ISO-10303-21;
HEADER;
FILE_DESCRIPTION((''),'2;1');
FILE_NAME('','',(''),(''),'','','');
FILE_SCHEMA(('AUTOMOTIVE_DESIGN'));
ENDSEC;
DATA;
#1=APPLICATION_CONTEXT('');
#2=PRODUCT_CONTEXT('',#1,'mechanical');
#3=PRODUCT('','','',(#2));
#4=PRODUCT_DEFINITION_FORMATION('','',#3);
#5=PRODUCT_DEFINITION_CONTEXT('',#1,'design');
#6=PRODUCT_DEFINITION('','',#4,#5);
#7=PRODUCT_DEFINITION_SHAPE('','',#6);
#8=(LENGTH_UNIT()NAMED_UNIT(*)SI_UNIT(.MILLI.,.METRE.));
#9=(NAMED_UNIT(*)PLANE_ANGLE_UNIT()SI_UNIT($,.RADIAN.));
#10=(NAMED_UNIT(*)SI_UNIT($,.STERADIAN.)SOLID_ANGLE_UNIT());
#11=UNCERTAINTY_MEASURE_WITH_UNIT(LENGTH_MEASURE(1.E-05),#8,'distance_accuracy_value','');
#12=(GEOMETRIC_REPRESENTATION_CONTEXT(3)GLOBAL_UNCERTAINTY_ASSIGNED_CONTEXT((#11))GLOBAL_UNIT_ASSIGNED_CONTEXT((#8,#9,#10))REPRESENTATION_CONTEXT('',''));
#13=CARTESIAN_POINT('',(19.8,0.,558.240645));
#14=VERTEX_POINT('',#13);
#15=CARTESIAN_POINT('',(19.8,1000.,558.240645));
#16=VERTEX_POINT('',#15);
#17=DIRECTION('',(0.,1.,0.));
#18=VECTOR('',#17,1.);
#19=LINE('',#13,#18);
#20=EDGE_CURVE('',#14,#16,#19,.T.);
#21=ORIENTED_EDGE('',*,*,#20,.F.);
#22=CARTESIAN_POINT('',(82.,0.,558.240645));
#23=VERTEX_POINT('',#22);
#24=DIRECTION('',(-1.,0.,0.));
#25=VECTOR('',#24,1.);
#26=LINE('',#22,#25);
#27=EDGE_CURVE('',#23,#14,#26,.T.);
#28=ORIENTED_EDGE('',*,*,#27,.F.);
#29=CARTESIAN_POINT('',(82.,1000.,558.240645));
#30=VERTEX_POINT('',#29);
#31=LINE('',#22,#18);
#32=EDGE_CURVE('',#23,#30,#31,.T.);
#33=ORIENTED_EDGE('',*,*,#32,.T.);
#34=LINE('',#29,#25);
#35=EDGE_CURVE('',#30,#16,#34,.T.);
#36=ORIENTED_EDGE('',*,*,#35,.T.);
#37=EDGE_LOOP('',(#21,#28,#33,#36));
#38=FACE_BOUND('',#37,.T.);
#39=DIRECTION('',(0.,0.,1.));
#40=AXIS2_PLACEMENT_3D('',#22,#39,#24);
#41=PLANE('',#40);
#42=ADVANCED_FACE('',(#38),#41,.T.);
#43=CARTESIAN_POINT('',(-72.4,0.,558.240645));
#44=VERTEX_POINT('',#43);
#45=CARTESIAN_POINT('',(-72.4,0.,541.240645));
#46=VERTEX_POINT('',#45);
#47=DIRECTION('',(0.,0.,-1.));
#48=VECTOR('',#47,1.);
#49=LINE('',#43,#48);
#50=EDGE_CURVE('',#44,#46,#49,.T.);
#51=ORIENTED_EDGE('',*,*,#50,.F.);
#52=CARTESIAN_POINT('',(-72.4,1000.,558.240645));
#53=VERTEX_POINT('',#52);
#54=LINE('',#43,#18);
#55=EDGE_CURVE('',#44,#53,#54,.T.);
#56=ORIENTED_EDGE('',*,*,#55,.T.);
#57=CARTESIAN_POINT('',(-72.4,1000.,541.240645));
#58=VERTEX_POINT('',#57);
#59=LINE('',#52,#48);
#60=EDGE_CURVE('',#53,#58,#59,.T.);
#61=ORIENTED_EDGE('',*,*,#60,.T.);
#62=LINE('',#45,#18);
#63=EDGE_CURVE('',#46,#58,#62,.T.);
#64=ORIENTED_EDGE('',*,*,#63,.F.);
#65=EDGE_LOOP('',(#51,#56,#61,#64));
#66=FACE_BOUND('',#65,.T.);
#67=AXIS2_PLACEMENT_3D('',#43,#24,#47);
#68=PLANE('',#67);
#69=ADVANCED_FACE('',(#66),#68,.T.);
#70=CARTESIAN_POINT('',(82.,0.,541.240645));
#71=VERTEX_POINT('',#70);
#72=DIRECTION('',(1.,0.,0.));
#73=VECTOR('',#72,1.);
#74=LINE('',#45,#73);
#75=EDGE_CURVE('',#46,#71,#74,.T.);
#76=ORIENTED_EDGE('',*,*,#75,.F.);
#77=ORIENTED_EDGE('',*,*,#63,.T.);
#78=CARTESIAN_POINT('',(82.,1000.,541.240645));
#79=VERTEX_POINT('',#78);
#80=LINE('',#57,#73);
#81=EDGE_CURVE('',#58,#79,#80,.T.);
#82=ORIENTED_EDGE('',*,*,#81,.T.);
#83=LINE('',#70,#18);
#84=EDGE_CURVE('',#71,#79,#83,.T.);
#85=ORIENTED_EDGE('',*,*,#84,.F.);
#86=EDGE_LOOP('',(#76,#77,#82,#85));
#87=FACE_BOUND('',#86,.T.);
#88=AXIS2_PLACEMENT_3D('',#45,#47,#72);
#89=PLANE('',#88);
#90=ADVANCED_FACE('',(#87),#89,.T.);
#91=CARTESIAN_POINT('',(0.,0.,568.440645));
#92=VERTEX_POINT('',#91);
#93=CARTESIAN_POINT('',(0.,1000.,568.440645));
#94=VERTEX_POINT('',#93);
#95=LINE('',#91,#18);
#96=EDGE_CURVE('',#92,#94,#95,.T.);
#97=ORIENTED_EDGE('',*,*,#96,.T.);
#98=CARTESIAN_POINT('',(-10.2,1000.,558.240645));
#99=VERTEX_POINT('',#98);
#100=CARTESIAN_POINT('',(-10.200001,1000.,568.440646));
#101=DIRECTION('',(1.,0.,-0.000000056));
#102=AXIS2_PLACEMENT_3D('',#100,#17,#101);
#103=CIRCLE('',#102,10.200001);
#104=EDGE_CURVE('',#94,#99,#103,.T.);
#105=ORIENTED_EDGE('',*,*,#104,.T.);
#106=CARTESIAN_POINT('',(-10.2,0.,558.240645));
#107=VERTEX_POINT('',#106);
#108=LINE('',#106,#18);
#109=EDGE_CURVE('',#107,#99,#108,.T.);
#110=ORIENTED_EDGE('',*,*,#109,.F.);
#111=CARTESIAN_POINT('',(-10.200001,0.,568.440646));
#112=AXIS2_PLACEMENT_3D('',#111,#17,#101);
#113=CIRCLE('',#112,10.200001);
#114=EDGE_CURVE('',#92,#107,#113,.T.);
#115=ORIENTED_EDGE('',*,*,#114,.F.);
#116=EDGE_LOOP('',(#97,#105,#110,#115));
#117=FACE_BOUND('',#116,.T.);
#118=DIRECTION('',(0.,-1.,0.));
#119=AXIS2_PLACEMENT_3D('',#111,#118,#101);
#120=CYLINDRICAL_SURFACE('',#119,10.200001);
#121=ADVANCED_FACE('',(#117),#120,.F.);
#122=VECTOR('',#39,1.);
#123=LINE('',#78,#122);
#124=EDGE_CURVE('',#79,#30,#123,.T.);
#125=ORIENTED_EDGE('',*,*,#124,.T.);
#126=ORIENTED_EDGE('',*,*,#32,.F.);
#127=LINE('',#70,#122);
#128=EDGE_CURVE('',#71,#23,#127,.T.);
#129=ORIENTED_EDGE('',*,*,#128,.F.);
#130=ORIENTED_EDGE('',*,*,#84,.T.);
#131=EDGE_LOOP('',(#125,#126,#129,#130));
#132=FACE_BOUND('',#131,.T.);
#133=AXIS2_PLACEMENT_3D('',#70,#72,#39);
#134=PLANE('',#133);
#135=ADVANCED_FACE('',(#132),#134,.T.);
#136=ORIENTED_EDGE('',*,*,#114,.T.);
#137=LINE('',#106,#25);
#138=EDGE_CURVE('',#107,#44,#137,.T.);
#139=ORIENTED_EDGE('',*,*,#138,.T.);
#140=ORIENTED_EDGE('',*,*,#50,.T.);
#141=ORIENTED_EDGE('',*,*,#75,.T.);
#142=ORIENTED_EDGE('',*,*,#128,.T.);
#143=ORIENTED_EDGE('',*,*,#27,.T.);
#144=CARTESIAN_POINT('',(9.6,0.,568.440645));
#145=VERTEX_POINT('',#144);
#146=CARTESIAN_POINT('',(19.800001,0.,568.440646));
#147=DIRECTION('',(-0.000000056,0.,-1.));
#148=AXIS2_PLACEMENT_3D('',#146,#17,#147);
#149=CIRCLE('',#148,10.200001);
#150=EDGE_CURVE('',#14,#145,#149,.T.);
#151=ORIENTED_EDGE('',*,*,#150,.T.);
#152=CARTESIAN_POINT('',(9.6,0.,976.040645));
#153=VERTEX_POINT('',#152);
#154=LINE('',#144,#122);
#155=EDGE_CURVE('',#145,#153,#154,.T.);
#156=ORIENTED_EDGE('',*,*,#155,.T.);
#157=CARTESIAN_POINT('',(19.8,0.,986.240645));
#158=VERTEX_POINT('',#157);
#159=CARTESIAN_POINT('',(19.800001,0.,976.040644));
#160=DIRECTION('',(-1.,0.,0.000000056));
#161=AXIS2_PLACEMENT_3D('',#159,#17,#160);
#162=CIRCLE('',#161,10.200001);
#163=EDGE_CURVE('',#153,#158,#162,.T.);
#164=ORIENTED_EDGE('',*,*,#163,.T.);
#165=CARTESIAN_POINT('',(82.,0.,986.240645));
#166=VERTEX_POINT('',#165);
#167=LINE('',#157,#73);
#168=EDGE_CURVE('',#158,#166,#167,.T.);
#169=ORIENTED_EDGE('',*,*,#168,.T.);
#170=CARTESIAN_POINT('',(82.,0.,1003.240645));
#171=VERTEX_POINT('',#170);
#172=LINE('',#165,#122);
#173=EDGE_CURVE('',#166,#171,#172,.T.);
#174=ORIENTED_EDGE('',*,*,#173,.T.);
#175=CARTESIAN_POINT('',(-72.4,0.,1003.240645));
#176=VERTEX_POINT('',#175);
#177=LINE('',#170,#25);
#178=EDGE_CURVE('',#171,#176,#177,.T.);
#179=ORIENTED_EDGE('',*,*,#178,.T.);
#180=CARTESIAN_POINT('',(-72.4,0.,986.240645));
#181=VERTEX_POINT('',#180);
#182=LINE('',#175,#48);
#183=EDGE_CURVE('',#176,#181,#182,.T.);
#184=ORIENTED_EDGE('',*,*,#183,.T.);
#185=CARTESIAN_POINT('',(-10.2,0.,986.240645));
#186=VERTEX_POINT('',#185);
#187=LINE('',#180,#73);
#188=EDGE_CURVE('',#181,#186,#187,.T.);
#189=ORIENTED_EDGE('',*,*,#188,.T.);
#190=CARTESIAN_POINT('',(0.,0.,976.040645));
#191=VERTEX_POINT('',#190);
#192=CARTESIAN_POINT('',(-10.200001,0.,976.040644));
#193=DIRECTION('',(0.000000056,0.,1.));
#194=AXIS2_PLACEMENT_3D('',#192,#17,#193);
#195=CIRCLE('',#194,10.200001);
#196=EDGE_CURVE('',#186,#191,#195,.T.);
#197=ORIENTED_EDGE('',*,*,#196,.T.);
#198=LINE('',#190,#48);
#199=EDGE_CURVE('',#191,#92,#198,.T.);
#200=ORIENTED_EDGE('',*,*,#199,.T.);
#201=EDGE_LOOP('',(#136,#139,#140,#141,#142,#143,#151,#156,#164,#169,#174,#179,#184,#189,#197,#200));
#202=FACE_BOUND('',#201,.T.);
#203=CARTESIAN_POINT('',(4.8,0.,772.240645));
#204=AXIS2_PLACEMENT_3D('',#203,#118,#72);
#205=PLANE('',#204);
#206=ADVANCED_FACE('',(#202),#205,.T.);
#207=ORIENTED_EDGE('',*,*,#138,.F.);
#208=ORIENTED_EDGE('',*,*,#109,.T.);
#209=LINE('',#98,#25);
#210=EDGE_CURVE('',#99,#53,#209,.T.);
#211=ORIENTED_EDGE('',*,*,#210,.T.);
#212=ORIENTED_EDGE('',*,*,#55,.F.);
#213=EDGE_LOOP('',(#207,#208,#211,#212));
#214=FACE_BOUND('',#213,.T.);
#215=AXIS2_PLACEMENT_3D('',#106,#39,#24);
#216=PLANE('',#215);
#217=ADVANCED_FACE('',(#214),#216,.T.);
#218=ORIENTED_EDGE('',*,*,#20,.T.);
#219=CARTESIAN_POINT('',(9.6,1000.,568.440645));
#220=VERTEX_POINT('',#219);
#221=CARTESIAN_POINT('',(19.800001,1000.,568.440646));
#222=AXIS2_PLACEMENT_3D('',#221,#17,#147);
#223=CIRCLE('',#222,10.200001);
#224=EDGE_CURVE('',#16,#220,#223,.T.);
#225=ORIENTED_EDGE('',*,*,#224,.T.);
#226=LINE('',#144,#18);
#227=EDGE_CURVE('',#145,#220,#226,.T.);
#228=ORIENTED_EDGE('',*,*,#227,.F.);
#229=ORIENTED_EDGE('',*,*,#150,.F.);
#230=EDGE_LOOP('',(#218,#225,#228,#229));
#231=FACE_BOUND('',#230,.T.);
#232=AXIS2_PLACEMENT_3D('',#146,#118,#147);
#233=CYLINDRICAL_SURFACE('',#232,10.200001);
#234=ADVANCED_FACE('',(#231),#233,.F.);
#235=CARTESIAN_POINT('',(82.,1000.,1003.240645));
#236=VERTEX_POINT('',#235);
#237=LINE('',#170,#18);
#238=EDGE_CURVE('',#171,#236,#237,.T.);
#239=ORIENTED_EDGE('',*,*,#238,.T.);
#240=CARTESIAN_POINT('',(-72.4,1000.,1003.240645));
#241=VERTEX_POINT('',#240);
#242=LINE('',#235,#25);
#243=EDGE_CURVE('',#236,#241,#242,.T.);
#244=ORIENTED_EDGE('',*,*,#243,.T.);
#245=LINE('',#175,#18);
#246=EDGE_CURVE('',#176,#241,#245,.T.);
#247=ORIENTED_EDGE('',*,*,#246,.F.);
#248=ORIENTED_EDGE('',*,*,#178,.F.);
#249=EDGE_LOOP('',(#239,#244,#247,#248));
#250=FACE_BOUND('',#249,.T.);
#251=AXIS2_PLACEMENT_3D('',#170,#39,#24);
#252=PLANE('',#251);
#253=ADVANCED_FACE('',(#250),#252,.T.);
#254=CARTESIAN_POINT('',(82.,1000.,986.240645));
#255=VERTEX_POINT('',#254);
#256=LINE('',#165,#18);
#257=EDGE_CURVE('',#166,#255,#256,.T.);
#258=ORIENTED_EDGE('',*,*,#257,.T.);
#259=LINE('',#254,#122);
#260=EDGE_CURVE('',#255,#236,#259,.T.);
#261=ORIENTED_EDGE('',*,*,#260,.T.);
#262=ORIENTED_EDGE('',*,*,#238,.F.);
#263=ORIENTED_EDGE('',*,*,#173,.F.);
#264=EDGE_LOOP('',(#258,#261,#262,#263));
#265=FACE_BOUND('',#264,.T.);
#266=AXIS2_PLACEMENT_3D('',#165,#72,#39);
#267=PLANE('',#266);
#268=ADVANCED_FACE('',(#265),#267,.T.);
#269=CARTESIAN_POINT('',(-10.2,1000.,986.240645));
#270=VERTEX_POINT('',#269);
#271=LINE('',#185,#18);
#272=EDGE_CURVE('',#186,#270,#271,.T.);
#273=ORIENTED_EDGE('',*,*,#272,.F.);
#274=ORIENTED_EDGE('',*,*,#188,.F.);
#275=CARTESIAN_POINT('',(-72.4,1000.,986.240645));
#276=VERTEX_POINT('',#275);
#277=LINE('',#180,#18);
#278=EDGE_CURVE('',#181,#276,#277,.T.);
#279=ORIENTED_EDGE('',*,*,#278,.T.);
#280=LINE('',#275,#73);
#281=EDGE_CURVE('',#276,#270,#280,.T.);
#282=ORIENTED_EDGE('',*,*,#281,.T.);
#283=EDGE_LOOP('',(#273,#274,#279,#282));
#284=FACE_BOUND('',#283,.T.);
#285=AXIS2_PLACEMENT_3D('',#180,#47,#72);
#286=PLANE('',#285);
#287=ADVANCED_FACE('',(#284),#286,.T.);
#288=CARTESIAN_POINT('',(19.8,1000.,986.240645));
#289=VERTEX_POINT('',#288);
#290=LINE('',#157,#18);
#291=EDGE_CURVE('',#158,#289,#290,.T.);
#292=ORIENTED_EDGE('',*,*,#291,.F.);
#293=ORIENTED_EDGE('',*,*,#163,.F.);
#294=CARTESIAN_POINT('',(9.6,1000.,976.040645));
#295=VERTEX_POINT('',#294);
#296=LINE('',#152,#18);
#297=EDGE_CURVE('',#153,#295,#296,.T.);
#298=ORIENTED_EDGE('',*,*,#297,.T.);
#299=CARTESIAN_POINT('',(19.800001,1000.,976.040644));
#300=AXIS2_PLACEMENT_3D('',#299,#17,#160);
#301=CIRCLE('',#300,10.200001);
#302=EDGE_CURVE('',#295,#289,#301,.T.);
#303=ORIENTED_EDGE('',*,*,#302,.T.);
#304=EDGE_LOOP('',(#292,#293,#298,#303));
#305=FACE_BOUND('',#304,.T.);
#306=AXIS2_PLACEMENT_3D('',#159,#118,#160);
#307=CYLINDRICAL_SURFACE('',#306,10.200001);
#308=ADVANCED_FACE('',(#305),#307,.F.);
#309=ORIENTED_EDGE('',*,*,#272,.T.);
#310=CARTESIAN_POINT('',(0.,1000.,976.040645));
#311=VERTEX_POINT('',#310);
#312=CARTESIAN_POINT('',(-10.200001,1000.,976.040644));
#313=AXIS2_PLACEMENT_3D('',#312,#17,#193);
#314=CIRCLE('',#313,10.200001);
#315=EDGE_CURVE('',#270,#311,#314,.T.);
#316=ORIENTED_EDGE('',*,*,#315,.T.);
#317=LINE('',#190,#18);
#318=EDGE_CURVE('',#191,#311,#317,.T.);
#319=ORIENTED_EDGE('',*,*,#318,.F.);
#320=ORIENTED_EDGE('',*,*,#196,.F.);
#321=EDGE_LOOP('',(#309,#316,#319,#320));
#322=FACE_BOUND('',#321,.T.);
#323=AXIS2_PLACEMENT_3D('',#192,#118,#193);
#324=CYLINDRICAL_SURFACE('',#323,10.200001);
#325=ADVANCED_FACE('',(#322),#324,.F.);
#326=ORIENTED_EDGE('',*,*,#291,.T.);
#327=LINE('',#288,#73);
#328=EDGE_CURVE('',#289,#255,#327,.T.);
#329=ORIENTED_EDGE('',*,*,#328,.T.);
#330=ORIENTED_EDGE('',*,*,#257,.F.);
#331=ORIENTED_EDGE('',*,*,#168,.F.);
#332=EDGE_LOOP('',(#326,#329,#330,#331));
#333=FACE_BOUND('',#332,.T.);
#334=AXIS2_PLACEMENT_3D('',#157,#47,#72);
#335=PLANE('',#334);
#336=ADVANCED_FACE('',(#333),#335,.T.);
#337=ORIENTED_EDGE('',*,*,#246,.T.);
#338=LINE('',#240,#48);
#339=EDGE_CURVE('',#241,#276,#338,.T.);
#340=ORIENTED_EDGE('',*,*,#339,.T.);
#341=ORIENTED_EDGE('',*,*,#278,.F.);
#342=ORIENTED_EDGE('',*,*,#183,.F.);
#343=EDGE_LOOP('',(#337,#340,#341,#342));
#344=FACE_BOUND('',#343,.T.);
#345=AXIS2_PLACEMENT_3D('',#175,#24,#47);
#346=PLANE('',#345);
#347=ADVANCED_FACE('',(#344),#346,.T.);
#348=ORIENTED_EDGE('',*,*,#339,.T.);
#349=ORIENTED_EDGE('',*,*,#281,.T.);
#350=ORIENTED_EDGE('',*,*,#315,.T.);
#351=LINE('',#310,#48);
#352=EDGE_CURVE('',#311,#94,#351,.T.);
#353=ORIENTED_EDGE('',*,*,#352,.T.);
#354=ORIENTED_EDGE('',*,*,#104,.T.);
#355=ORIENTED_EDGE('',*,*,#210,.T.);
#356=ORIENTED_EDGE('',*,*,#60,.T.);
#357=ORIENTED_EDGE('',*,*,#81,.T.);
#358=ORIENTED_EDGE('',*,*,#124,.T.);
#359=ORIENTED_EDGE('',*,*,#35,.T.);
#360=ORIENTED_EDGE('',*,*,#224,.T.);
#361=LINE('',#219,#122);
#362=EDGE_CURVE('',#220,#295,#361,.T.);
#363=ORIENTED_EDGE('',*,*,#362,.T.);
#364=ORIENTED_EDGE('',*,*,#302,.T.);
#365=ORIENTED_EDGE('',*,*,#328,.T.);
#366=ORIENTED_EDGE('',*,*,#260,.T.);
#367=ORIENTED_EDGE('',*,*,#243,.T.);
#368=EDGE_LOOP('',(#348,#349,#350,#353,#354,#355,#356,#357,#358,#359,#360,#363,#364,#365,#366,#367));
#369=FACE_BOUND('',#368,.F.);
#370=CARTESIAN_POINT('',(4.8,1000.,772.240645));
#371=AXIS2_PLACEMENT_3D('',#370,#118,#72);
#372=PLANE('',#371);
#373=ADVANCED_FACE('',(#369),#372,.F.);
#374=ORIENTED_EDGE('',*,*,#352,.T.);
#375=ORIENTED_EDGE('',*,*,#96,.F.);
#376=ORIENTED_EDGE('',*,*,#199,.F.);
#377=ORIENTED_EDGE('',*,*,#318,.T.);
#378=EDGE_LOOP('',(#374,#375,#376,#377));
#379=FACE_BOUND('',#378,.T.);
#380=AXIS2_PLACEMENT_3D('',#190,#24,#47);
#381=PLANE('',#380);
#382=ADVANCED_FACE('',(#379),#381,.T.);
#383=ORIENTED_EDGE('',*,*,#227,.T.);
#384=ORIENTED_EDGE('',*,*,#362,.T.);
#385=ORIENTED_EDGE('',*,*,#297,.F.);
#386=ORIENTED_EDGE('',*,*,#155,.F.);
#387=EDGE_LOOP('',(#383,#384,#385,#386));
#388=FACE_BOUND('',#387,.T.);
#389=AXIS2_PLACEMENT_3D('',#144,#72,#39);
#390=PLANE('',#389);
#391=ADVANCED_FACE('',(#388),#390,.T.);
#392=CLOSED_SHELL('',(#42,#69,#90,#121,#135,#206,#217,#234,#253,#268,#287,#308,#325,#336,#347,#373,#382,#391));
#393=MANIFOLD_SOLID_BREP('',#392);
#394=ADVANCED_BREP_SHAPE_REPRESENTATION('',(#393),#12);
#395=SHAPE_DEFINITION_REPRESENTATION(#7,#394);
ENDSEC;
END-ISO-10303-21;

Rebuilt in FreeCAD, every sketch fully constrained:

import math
import FreeCAD as App
import Part
import Sketcher
Q = App.Units.Quantity

doc = App.newDocument("Part")
body = doc.addObject("PartDesign::Body", "Body")

# Sketch on XZ plane
sketch1 = body.newObject("Sketcher::SketchObject", "Sketch")
sketch1.AttachmentSupport = (doc.getObject("XZ_Plane"), [""])
sketch1.MapMode = "FlatFace"
sketch1.addGeometry(Part.LineSegment(App.Vector(-72.4, 558.240645, 0), App.Vector(-72.4, 541.240645, 0)), False)
sketch1.addGeometry(Part.LineSegment(App.Vector(-72.4, 541.240645, 0), App.Vector(82, 541.240645, 0)), False)
sketch1.addGeometry(Part.LineSegment(App.Vector(82, 541.240645, 0), App.Vector(82, 558.240645, 0)), False)
sketch1.addGeometry(Part.LineSegment(App.Vector(82, 558.240645, 0), App.Vector(19.8, 558.240645, 0)), False)
sketch1.addGeometry(Part.ArcOfCircle(Part.Circle(App.Vector(19.800001, 568.440646, 0), App.Vector(0, 0, 1), 10.200001), math.radians(-179.999997), math.radians(-90.000003)), False)
sketch1.addGeometry(Part.LineSegment(App.Vector(9.6, 568.440645, 0), App.Vector(9.6, 976.040645, 0)), False)
sketch1.addGeometry(Part.ArcOfCircle(Part.Circle(App.Vector(19.800001, 976.040644, 0), App.Vector(0, 0, 1), 10.200001), math.radians(90.000003), math.radians(179.999997)), False)
sketch1.addGeometry(Part.LineSegment(App.Vector(19.8, 986.240645, 0), App.Vector(82, 986.240645, 0)), False)
sketch1.addGeometry(Part.LineSegment(App.Vector(82, 986.240645, 0), App.Vector(82, 1003.240645, 0)), False)
sketch1.addGeometry(Part.LineSegment(App.Vector(82, 1003.240645, 0), App.Vector(-72.4, 1003.240645, 0)), False)
sketch1.addGeometry(Part.LineSegment(App.Vector(-72.4, 1003.240645, 0), App.Vector(-72.4, 986.240645, 0)), False)
sketch1.addGeometry(Part.LineSegment(App.Vector(-72.4, 986.240645, 0), App.Vector(-10.2, 986.240645, 0)), False)
sketch1.addGeometry(Part.ArcOfCircle(Part.Circle(App.Vector(-10.200001, 976.040644, 0), App.Vector(0, 0, 1), 10.200001), math.radians(0.000003), math.radians(89.999997)), False)
sketch1.addGeometry(Part.LineSegment(App.Vector(0, 976.040645, 0), App.Vector(0, 568.440645, 0)), False)
sketch1.addGeometry(Part.ArcOfCircle(Part.Circle(App.Vector(-10.200001, 568.440646, 0), App.Vector(0, 0, 1), 10.200001), math.radians(-89.999997), math.radians(-0.000003)), False)
sketch1.addGeometry(Part.LineSegment(App.Vector(-10.2, 558.240645, 0), App.Vector(-72.4, 558.240645, 0)), False)
sketch1.addConstraint(Sketcher.Constraint("Coincident", 0, 2, 1, 1))
sketch1.addConstraint(Sketcher.Constraint("Coincident", 1, 2, 2, 1))
sketch1.addConstraint(Sketcher.Constraint("Coincident", 2, 2, 3, 1))
sketch1.addConstraint(Sketcher.Constraint("Tangent", 3, 2, 4, 2))
sketch1.addConstraint(Sketcher.Constraint("Tangent", 4, 1, 5, 1))
sketch1.addConstraint(Sketcher.Constraint("Tangent", 5, 2, 6, 2))
sketch1.addConstraint(Sketcher.Constraint("Tangent", 6, 1, 7, 1))
sketch1.addConstraint(Sketcher.Constraint("Coincident", 7, 2, 8, 1))
sketch1.addConstraint(Sketcher.Constraint("Coincident", 8, 2, 9, 1))
sketch1.addConstraint(Sketcher.Constraint("Coincident", 9, 2, 10, 1))
sketch1.addConstraint(Sketcher.Constraint("Coincident", 10, 2, 11, 1))
sketch1.addConstraint(Sketcher.Constraint("Tangent", 11, 2, 12, 2))
sketch1.addConstraint(Sketcher.Constraint("Tangent", 12, 1, 13, 1))
sketch1.addConstraint(Sketcher.Constraint("Tangent", 13, 2, 14, 2))
sketch1.addConstraint(Sketcher.Constraint("Tangent", 14, 1, 15, 1))
sketch1.addConstraint(Sketcher.Constraint("Coincident", 15, 2, 0, 1))
sketch1.addConstraint(Sketcher.Constraint("Vertical", 0))
sketch1.addConstraint(Sketcher.Constraint("Horizontal", 1))
sketch1.addConstraint(Sketcher.Constraint("Vertical", 2))
sketch1.addConstraint(Sketcher.Constraint("Horizontal", 3))
sketch1.addConstraint(Sketcher.Constraint("Vertical", 5))
sketch1.addConstraint(Sketcher.Constraint("Horizontal", 7))
sketch1.addConstraint(Sketcher.Constraint("Vertical", 8))
sketch1.addConstraint(Sketcher.Constraint("Horizontal", 9))
sketch1.addConstraint(Sketcher.Constraint("Vertical", 10))
sketch1.addConstraint(Sketcher.Constraint("Horizontal", 11))
sketch1.addConstraint(Sketcher.Constraint("Vertical", 13))
sketch1.addConstraint(Sketcher.Constraint("Horizontal", 15))
sketch1.addConstraint(Sketcher.Constraint("Equal", 4, 6))
sketch1.addConstraint(Sketcher.Constraint("Equal", 6, 12))
sketch1.addConstraint(Sketcher.Constraint("Equal", 12, 14))
sketch1.addConstraint(Sketcher.Constraint("PointOnObject", 12, 1, -2))
sketch1.addConstraint(Sketcher.Constraint("Horizontal", 6, 3, 12, 3))
sketch1.addConstraint(Sketcher.Constraint("Horizontal", 4, 3, 14, 3))
sketch1.addConstraint(Sketcher.Constraint("Vertical", 2, 2, 7, 2))
sketch1.addConstraint(Sketcher.Constraint("Vertical", 0, 2, 9, 2))
sketch1.addConstraint(Sketcher.Constraint("Equal", 7, 11))
sketch1.addConstraint(Sketcher.Constraint("Equal", 2, 8))
sketch1.addConstraint(Sketcher.Constraint("Radius", 4, Q("10.200001 mm")))
sketch1.addConstraint(Sketcher.Constraint("DistanceY", 0, 2, 0, 1, Q("17 mm")))
sketch1.addConstraint(Sketcher.Constraint("DistanceX", 1, 1, 1, 2, Q("154.4 mm")))
sketch1.addConstraint(Sketcher.Constraint("DistanceX", 3, 2, 3, 1, Q("62.2 mm")))
sketch1.addConstraint(Sketcher.Constraint("DistanceY", 5, 1, 5, 2, Q("407.6 mm")))
sketch1.addConstraint(Sketcher.Constraint("DistanceY", -1, 1, 4, 3, Q("568.440646 mm")))
pad1 = body.newObject("PartDesign::Pad", "Pad")
pad1.Profile = sketch1
pad1.Length = 1000
pad1.Reversed = True

doc.recompute()
